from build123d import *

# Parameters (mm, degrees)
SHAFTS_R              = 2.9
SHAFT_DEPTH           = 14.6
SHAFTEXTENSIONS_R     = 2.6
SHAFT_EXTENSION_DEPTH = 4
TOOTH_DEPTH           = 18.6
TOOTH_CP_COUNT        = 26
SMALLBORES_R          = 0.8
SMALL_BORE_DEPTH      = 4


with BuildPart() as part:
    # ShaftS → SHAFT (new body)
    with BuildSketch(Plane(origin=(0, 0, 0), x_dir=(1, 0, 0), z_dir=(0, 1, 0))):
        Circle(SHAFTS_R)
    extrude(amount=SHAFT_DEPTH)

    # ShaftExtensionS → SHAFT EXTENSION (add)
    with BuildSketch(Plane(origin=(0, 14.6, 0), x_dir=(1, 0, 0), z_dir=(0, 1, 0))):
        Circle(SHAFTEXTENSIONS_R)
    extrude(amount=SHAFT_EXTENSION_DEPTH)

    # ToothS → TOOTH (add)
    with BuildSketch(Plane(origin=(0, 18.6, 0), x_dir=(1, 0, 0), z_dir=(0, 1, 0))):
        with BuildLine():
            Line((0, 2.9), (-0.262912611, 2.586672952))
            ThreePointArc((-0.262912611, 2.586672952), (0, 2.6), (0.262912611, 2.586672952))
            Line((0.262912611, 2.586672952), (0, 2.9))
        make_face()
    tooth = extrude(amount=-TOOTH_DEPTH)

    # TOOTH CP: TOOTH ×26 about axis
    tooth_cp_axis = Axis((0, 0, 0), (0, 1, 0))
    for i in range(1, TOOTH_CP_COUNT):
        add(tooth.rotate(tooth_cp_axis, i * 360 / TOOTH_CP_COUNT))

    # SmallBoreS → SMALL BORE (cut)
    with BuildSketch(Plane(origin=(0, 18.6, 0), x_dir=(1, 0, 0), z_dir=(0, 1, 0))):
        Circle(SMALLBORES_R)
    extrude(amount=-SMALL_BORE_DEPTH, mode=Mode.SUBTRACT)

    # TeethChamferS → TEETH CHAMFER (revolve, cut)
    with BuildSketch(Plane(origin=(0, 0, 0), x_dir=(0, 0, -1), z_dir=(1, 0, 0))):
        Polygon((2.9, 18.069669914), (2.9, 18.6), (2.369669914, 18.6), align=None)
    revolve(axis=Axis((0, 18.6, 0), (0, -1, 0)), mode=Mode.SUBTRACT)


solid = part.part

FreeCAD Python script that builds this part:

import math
import FreeCAD as App
import Part
import Sketcher
from FreeCAD import Vector
Q = App.Units.Quantity

doc = App.newDocument("Part")
params = doc.addObject("Spreadsheet::Sheet", "Params")
for row, (alias, value) in enumerate([
    ("sketch1_diameter", "5.8 mm"),
    ("pad1_length", "14.6 mm"),
    ("sketch2_diameter", "5.2 mm"),
    ("pad2_length", "4 mm"),
    ("sketch3_radius", "2.6 mm"),
    ("pad3_length", "18.6 mm"),
    ("sketch4_diameter", "1.6 mm"),
    ("pocket1_length", "4 mm"),
    ("sketch5_length", "0.75 mm"),
    ("groove_angle", "360 deg"),
], start=1):
    params.set(f"A{row}", alias)
    params.set(f"B{row}", "=" + value)
    params.setAlias(f"B{row}", alias)

body = doc.addObject("PartDesign::Body", "Body")

sketch1 = body.newObject("Sketcher::SketchObject", "Sketch")
sketch1.AttachmentSupport = (doc.getObject("XZ_Plane"), [""])
sketch1.MapMode = "FlatFace"
sketch1.addGeometry(Part.Circle(Vector(0, 0, 0), Vector(0, 0, 1), 2.9), False)
sketch1.addConstraint(Sketcher.Constraint("Coincident", 0, 3, -1, 1))
sketch1.addConstraint(Sketcher.Constraint("Diameter", 0, 5.8))
sketch1.setExpression("Constraints[1]", "Params.sketch1_diameter")
pad1 = body.newObject("PartDesign::Pad", "Pad")
pad1.Profile = sketch1
pad1.setExpression("Length", "Params.pad1_length")
pad1.Reversed = True

sketch2 = body.newObject("Sketcher::SketchObject", "Sketch001")
sketch2.AttachmentSupport = (doc.getObject("XZ_Plane"), [""])
sketch2.MapMode = "FlatFace"
sketch2.AttachmentOffset = App.Placement(Vector(0, 0, -14.6), App.Rotation())
sketch2.addGeometry(Part.Circle(Vector(0, 0, 0), Vector(0, 0, 1), 2.6), False)
sketch2.addConstraint(Sketcher.Constraint("Coincident", 0, 3, -1, 1))
sketch2.addConstraint(Sketcher.Constraint("Diameter", 0, 5.2))
sketch2.setExpression("Constraints[1]", "Params.sketch2_diameter")
pad2 = body.newObject("PartDesign::Pad", "Pad001")
pad2.Profile = sketch2
pad2.setExpression("Length", "Params.pad2_length")
pad2.Reversed = True

sketch3 = body.newObject("Sketcher::SketchObject", "Sketch002")
sketch3.AttachmentSupport = (doc.getObject("XZ_Plane"), [""])
sketch3.MapMode = "FlatFace"
sketch3.AttachmentOffset = App.Placement(Vector(0, 0, -18.6), App.Rotation())
sketch3.addGeometry(Part.LineSegment(Vector(0, -2.9, 0), Vector(-0.262913, -2.586673, 0)), False)
sketch3.addGeometry(Part.ArcOfCircle(Part.Circle(Vector(0, 0, 0), Vector(0, 0, 1), 2.6), math.radians(-95.803682), math.radians(-84.196318)), False)
sketch3.addGeometry(Part.LineSegment(Vector(0.262913, -2.586673, 0), Vector(0, -2.9, 0)), False)
sketch3.addConstraint(Sketcher.Constraint("Coincident", 0, 2, 1, 1))
sketch3.addConstraint(Sketcher.Constraint("Coincident", 1, 2, 2, 1))
sketch3.addConstraint(Sketcher.Constraint("Coincident", 2, 2, 0, 1))
sketch3.addConstraint(Sketcher.Constraint("Coincident", 1, 3, -1, 1))
sketch3.addConstraint(Sketcher.Constraint("PointOnObject", 2, 2, -2))
sketch3.addConstraint(Sketcher.Constraint("Horizontal", 0, 2, 1, 2))
sketch3.addConstraint(Sketcher.Constraint("Radius", 1, 2.6))
sketch3.addConstraint(Sketcher.Constraint("Angle", 0, Q("130 deg")))
sketch3.addConstraint(Sketcher.Constraint("DistanceY", 2, 2, -1, 1, 2.9))
sketch3.setExpression("Constraints[6]", "Params.sketch3_radius")
pad3 = body.newObject("PartDesign::Pad", "Pad002")
pad3.Profile = sketch3
pad3.setExpression("Length", "Params.pad3_length")
doc.recompute()

polarpattern = body.newObject("PartDesign::PolarPattern", "PolarPattern")
polarpattern.Originals = [pad3]
polarpattern.Axis = (doc.getObject("Y_Axis"), [""])
polarpattern.Angle = 360
polarpattern.Occurrences = 26
body.Tip = polarpattern

sketch4 = body.newObject("Sketcher::SketchObject", "Sketch003")
sketch4.AttachmentSupport = (doc.getObject("XZ_Plane"), [""])
sketch4.MapMode = "FlatFace"
sketch4.AttachmentOffset = App.Placement(Vector(0, 0, -18.6), App.Rotation())
sketch4.addGeometry(Part.Circle(Vector(0, 0, 0), Vector(0, 0, 1), 0.8), False)
sketch4.addConstraint(Sketcher.Constraint("Coincident", 0, 3, -1, 1))
sketch4.addConstraint(Sketcher.Constraint("Diameter", 0, 1.6))
sketch4.setExpression("Constraints[1]", "Params.sketch4_diameter")
pocket1 = body.newObject("PartDesign::Pocket", "Pocket")
pocket1.Profile = sketch4
pocket1.setExpression("Length", "Params.pocket1_length")
pocket1.Reversed = True

sketch5 = body.newObject("Sketcher::SketchObject", "Sketch004")
sketch5.AttachmentSupport = (doc.getObject("YZ_Plane"), [""])
sketch5.MapMode = "FlatFace"
sketch5.addGeometry(Part.LineSegment(Vector(18.06967, -2.9, 0), Vector(18.6, -2.9, 0)), False)
sketch5.addGeometry(Part.LineSegment(Vector(18.6, -2.9, 0), Vector(18.6, -2.36967, 0)), False)
sketch5.addGeometry(Part.LineSegment(Vector(18.6, -2.36967, 0), Vector(18.06967, -2.9, 0)), False)
sketch5.addConstraint(Sketcher.Constraint("Coincident", 0, 2, 1, 1))
sketch5.addConstraint(Sketcher.Constraint("Coincident", 1, 2, 2, 1))
sketch5.addConstraint(Sketcher.Constraint("Coincident", 2, 2, 0, 1))
sketch5.addConstraint(Sketcher.Constraint("Horizontal", 0))
sketch5.addConstraint(Sketcher.Constraint("Vertical", 1))
sketch5.addConstraint(Sketcher.Constraint("Equal", 0, 1))
sketch5.addConstraint(Sketcher.Constraint("DistanceX", -1, 1, 0, 2, 18.6))
sketch5.addConstraint(Sketcher.Constraint("DistanceY", 0, 2, -1, 1, 2.9))
sketch5.addConstraint(Sketcher.Constraint("Distance", 2, 0.75))
sketch5.setExpression("Constraints[8]", "Params.sketch5_length")
groove = body.newObject("PartDesign::Groove", "Groove")
groove.Profile = sketch5
groove.ReferenceAxis = (sketch5, ["H_Axis"])
groove.setExpression("Angle", "Params.groove_angle")

doc.recompute()
